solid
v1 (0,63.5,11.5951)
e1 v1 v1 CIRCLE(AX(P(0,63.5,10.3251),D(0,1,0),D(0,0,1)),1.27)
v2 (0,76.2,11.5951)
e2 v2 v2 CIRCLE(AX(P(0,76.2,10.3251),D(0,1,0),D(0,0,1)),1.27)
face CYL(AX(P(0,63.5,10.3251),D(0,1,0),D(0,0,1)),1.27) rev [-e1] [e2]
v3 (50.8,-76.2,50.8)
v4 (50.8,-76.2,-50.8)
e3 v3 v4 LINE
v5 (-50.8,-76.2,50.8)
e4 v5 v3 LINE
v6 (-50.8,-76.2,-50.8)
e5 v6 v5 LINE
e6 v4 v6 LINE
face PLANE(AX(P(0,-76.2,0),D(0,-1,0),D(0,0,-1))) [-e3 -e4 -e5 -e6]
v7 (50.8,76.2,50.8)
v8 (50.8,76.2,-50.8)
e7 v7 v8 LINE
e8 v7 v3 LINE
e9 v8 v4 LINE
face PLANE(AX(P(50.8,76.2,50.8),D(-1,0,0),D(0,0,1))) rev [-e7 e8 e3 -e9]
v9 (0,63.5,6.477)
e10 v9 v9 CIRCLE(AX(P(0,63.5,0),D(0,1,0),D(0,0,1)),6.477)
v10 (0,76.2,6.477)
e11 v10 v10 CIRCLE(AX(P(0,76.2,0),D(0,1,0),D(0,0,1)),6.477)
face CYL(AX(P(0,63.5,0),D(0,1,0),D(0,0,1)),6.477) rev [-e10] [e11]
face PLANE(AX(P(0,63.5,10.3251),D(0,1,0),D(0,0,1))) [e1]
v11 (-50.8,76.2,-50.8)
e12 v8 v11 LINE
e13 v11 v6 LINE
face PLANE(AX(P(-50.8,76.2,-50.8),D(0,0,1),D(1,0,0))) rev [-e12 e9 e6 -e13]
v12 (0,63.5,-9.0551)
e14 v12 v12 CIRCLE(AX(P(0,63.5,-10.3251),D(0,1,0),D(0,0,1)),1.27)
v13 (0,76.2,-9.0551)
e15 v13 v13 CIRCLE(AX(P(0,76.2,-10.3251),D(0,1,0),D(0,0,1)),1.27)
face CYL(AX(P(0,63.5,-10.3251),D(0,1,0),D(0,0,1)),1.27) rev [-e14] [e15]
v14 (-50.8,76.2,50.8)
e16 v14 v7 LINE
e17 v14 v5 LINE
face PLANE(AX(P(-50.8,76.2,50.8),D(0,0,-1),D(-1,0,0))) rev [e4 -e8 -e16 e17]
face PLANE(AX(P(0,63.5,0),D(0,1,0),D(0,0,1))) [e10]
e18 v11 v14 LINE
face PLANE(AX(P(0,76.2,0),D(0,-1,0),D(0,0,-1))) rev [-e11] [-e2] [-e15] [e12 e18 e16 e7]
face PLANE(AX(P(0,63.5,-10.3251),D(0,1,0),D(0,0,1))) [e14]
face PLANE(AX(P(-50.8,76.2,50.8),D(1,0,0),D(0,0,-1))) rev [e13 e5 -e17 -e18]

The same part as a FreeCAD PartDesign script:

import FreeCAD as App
import Part
import Sketcher

V = App.Vector
Q = App.Units.Quantity


def add_polygon(sketch, points):
    """Adds a closed chain of lines whose ends are joined by coincident constraints."""
    first, n = sketch.GeometryCount, len(points)
    for a, b in zip(points, points[1:] + points[:1]):
        sketch.addGeometry(Part.LineSegment(App.Vector(*a, 0), App.Vector(*b, 0)), False)
    for i in range(n):
        sketch.addConstraint(Sketcher.Constraint("Coincident", first + i, 2, first + (i + 1) % n, 1))

doc = App.newDocument("Part")
body = doc.addObject("PartDesign::Body", "Body")

sketch1 = body.newObject("Sketcher::SketchObject", "Sketch")
sketch1.AttachmentSupport = (doc.getObject("XZ_Plane"), [""])
sketch1.MapMode = "FlatFace"
add_polygon(sketch1, [(-51, -51), (-51, 51), (51, 51), (51, -51)])
sketch1.addConstraint([
    Sketcher.Constraint("Vertical", 0),
    Sketcher.Constraint("Horizontal", 1),
    Sketcher.Constraint("Vertical", 2),
    Sketcher.Constraint("Horizontal", 3),
    Sketcher.Constraint("Symmetric", 0, 2, 2, 2, -1, 1),
    Sketcher.Constraint("Equal", 3, 0),
    Sketcher.Constraint("DistanceX", 1, 1, 1, 2, Q("4 in")),
])
pad1 = body.newObject("PartDesign::Pad", "Pad")
pad1.Profile = sketch1
pad1.Length = Q("6 in")
pad1.Midplane = True

sketch2 = body.newObject("Sketcher::SketchObject", "Sketch001")
sketch2.AttachmentSupport = (doc.getObject("XZ_Plane"), [""])
sketch2.MapMode = "FlatFace"
sketch2.AttachmentOffset = App.Placement(V(0, 0, -3 * 25.4), App.Rotation())
sketch2.addGeometry([
    Part.Circle(V(0, 0, 0), V(0, 0, 1), 6.5),
    Part.Circle(V(0, -10.3, 0), V(0, 0, 1), 1.3),
    Part.Circle(V(0, 10.3, 0), V(0, 0, 1), 1.3),
], False)
sketch2.addConstraint([
    Sketcher.Constraint("Coincident", 0, 3, -1, 1),
    Sketcher.Constraint("Equal", 1, 2),
    Sketcher.Constraint("Symmetric", 1, 3, 2, 3, -1, 1),
    Sketcher.Constraint("PointOnObject", 1, 3, -2),
    Sketcher.Constraint("Diameter", 1, Q("0.1 in")),
    Sketcher.Constraint("Diameter", 0, Q("0.51 in")),
    Sketcher.Constraint("DistanceY", 1, 3, 2, 3, Q("0.813 in")),
])
pocket1 = body.newObject("PartDesign::Pocket", "Pocket")
pocket1.Profile = sketch2
pocket1.Length = Q("0.5 in")
pocket1.Reversed = True

doc.recompute()
